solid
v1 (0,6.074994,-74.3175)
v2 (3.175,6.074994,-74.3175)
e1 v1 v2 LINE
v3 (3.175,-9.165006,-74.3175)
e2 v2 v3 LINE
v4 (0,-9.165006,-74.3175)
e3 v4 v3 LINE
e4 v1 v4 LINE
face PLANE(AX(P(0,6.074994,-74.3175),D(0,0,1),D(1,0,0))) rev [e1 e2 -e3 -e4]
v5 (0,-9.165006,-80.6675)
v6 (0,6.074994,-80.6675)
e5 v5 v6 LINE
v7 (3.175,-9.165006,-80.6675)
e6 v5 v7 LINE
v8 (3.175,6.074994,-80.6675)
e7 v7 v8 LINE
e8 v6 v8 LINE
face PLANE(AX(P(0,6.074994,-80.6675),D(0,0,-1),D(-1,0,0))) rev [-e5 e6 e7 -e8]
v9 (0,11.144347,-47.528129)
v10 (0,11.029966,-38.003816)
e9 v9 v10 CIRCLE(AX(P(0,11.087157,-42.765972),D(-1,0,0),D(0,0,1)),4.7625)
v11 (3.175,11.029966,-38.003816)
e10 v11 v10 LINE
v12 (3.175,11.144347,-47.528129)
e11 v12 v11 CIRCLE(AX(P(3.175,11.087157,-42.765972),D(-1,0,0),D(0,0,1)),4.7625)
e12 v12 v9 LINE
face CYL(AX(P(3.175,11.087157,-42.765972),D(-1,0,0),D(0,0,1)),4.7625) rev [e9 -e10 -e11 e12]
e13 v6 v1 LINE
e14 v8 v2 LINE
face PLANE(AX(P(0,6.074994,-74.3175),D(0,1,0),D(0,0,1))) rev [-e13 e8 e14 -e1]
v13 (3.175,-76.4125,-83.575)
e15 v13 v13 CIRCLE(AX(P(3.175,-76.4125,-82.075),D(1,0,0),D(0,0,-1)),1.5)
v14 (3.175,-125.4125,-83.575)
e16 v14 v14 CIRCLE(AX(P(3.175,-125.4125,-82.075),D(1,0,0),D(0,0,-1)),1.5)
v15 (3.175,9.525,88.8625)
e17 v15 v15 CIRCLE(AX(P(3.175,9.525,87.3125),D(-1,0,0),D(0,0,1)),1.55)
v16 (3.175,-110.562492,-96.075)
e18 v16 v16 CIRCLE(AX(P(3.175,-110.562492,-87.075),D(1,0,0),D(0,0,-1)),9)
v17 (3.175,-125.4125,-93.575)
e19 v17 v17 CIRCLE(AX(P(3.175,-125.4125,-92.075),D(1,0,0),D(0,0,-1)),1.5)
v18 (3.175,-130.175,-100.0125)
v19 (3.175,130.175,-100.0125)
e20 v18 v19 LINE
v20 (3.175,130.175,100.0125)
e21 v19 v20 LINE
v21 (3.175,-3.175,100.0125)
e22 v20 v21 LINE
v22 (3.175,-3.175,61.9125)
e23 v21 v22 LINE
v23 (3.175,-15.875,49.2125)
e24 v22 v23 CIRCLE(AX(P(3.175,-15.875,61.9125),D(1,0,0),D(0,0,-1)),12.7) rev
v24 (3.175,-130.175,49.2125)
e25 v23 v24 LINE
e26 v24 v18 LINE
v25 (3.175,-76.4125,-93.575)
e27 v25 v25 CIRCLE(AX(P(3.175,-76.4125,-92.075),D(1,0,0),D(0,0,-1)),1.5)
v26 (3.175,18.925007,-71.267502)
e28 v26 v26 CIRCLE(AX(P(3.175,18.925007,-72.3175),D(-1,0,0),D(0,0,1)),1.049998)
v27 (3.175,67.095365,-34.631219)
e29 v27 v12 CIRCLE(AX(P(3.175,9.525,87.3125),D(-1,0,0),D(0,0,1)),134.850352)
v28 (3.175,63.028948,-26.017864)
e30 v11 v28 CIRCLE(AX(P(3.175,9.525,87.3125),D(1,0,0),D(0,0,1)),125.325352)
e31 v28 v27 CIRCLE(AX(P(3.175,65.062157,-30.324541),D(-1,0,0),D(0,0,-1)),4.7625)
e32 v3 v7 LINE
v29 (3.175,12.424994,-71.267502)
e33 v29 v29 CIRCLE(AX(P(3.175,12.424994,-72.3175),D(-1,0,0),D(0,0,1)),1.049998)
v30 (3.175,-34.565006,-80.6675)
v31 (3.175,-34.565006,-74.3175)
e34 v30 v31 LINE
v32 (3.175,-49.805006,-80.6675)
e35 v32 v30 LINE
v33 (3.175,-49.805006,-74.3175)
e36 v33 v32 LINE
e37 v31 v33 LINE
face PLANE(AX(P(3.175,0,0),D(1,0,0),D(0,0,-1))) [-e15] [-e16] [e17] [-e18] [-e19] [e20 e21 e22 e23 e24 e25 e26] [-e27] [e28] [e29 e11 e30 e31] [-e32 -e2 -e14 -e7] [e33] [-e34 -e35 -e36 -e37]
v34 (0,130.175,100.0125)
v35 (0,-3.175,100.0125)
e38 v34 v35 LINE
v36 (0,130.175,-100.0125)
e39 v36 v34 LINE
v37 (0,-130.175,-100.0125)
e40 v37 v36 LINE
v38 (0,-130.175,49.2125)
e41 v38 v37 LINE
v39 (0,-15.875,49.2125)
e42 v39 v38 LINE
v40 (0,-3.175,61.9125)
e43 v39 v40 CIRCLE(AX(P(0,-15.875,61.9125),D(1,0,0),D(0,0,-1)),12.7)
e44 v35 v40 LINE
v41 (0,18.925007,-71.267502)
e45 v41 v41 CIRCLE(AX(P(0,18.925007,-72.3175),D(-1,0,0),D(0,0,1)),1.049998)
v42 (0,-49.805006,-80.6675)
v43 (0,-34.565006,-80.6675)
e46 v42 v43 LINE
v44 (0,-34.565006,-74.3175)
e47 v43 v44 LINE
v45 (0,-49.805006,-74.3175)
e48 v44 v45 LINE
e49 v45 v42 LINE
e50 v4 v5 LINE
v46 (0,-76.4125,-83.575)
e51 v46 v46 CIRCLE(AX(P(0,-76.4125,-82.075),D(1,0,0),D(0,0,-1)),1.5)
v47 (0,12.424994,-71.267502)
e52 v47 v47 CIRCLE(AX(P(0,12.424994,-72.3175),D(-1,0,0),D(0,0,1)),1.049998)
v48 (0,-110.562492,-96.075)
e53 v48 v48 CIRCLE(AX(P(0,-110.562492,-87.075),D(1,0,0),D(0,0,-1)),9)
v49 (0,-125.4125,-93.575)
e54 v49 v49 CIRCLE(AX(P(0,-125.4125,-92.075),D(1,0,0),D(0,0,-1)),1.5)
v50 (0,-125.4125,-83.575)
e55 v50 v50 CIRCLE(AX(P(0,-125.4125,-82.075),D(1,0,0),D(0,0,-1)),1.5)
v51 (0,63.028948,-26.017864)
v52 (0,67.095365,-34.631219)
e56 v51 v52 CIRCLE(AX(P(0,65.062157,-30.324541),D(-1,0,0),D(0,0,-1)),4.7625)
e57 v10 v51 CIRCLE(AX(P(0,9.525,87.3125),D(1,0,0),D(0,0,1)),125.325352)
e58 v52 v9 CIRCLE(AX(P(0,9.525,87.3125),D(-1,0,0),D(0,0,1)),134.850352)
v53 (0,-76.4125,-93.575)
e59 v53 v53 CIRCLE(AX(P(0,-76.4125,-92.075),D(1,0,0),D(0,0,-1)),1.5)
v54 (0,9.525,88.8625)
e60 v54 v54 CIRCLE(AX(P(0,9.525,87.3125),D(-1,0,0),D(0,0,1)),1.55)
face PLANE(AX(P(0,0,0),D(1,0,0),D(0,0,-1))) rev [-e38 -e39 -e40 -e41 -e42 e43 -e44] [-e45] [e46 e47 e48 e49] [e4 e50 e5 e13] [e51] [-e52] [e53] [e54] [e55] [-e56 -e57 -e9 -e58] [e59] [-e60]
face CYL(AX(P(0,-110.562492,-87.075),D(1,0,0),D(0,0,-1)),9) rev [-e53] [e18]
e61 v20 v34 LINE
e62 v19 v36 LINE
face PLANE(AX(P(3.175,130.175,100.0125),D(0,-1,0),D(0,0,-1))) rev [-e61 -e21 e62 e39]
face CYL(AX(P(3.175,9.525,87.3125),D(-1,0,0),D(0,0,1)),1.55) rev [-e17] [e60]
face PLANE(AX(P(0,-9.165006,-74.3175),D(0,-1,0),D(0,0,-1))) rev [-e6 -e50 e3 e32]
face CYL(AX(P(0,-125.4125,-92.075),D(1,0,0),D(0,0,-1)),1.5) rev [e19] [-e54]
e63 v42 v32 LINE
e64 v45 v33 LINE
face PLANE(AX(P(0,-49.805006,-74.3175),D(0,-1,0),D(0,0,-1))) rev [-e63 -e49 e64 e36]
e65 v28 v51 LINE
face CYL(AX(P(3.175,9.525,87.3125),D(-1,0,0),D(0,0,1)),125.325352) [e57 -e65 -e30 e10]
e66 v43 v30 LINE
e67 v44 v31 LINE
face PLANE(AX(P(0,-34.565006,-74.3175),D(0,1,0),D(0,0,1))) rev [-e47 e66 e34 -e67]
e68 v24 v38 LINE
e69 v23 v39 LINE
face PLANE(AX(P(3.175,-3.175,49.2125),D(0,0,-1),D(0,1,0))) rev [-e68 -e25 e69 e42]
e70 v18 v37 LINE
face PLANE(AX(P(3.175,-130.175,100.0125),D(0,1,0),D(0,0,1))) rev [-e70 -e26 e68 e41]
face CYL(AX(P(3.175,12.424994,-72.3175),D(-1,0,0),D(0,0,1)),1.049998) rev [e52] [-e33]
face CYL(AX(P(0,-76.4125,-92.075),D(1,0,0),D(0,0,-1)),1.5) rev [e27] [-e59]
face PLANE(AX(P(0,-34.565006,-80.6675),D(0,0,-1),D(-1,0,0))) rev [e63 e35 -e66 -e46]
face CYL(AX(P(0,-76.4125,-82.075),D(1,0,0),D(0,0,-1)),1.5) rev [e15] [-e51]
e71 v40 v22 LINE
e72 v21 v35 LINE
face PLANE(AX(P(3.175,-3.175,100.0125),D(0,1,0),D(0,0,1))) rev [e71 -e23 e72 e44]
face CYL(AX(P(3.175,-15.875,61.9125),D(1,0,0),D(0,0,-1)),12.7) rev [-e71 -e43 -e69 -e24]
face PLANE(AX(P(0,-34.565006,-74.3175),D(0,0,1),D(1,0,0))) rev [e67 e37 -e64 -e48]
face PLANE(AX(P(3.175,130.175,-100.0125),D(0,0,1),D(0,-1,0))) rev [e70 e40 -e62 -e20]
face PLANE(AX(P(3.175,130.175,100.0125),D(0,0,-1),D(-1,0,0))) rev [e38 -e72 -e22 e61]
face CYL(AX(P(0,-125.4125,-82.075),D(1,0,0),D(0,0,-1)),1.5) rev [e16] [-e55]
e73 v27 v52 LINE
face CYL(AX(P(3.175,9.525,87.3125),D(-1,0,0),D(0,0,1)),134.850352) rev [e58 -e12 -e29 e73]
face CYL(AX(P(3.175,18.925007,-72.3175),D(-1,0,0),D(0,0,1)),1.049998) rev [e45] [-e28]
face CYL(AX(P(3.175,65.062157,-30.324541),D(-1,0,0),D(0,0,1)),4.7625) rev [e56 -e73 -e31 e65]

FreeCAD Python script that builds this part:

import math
import FreeCAD as App
import Part
import Sketcher

V = App.Vector
Q = App.Units.Quantity


def edges_at(feature, points):
    """Names of the edges that pass closest to the given points."""
    edges = feature.Shape.Edges
    near = lambda p: min(range(len(edges)), key=lambda i: edges[i].distToShape(Part.Vertex(*p))[0])
    return sorted({f"Edge{near(p) + 1}" for p in points})

doc = App.newDocument("Part")
params = doc.addObject("Spreadsheet::Sheet", "Params")
for row, (alias, value) in enumerate([
    ("sketch1_width", "10.25 in"),
    ("sketch1_height", "7.875 in"),
    ("pad1_length", "0.125 in"),
    ("sketch3_width", "5 in"),
    ("sketch3_height", "2 in"),
    ("fillet_radius", "0.5 in"),
    ("sketch4_radius", "0.1875 in"),
    ("sketch5_width", "0.6 in"),
    ("sketch5_height", "0.25 in"),
], start=1):
    params.set(f"A{row}", alias)
    params.set(f"B{row}", "=" + value)
    params.setAlias(f"B{row}", alias)

body = doc.addObject("PartDesign::Body", "Body")

sketch1 = body.newObject("Sketcher::SketchObject", "Sketch")
sketch1.AttachmentSupport = (doc.getObject("YZ_Plane"), [""])
sketch1.MapMode = "FlatFace"
sketch1.addGeometry(Part.LineSegment(V(130.175, 100.0125, 0), V(-130.175, 100.0125, 0)), False)
sketch1.addGeometry(Part.LineSegment(V(-130.175, 100.0125, 0), V(-130.175, -100.0125, 0)), False)
sketch1.addGeometry(Part.LineSegment(V(-130.175, -100.0125, 0), V(130.175, -100.0125, 0)), False)
sketch1.addGeometry(Part.LineSegment(V(130.175, -100.0125, 0), V(130.175, 100.0125, 0)), False)
sketch1.addConstraint(Sketcher.Constraint("Coincident", 0, 2, 1, 1))
sketch1.addConstraint(Sketcher.Constraint("Coincident", 1, 2, 2, 1))
sketch1.addConstraint(Sketcher.Constraint("Coincident", 2, 2, 3, 1))
sketch1.addConstraint(Sketcher.Constraint("Coincident", 3, 2, 0, 1))
sketch1.addConstraint(Sketcher.Constraint("Horizontal", 0))
sketch1.addConstraint(Sketcher.Constraint("Vertical", 1))
sketch1.addConstraint(Sketcher.Constraint("Horizontal", 2))
sketch1.addConstraint(Sketcher.Constraint("Vertical", 3))
sketch1.addConstraint(Sketcher.Constraint("Symmetric", 0, 2, 2, 2, -1, 1))
sketch1.addConstraint(Sketcher.Constraint("DistanceX", 0, 2, 0, 1, Q("10.25 in")))
sketch1.addConstraint(Sketcher.Constraint("DistanceY", 1, 2, 1, 1, Q("7.875 in")))
sketch1.setExpression("Constraints[9]", "Params.sketch1_width")
sketch1.setExpression("Constraints[10]", "Params.sketch1_height")
pad1 = body.newObject("PartDesign::Pad", "Pad")
pad1.Profile = sketch1
pad1.setExpression("Length", "Params.pad1_length")

sketch2 = body.newObject("Sketcher::SketchObject", "Sketch001")
sketch2.AttachmentSupport = (doc.getObject("YZ_Plane"), [""])
sketch2.MapMode = "FlatFace"
sketch2.addGeometry(Part.Circle(V(9.525, 87.3125, 0), V(0, 0, 1), 1.55), False)
sketch2.addGeometry(Part.Circle(V(18.925007, -72.3175, 0), V(0, 0, 1), 1.049998), False)
sketch2.addGeometry(Part.Circle(V(12.424994, -72.3175, 0), V(0, 0, 1), 1.049998), False)
sketch2.addConstraint(Sketcher.Constraint("Equal", 1, 2))
sketch2.addConstraint(Sketcher.Constraint("Horizontal", 1, 3, 2, 3))
sketch2.addConstraint(Sketcher.Constraint("Diameter", 0, Q("3.1 mm")))
sketch2.addConstraint(Sketcher.Constraint("DistanceX", -1, 1, 0, 3, Q("0.375 in")))
sketch2.addConstraint(Sketcher.Constraint("DistanceY", -1, 1, 0, 3, Q("3.4375 in")))
sketch2.addConstraint(Sketcher.Constraint("Diameter", 1, Q("2.099996 mm")))
sketch2.addConstraint(Sketcher.Constraint("DistanceY", 1, 3, -1, 1, Q("72.3175 mm")))
sketch2.addConstraint(Sketcher.Constraint("DistanceX", -1, 1, 1, 3, Q("18.925007 mm")))
sketch2.addConstraint(Sketcher.Constraint("DistanceX", -1, 1, 2, 3, Q("12.424994 mm")))
pocket1 = body.newObject("PartDesign::Pocket", "Pocket")
pocket1.Profile = sketch2
pocket1.Type = "ThroughAll"
pocket1.Reversed = True

sketch3 = body.newObject("Sketcher::SketchObject", "Sketch002")
sketch3.AttachmentSupport = (doc.getObject("YZ_Plane"), [""])
sketch3.MapMode = "FlatFace"
sketch3.addGeometry(Part.LineSegment(V(-3.175, 49.2125, 0), V(-130.175, 49.2125, 0)), False)
sketch3.addGeometry(Part.LineSegment(V(-130.175, 49.2125, 0), V(-130.175, 100.0125, 0)), False)
sketch3.addGeometry(Part.LineSegment(V(-130.175, 100.0125, 0), V(-3.175, 100.0125, 0)), False)
sketch3.addGeometry(Part.LineSegment(V(-3.175, 100.0125, 0), V(-3.175, 49.2125, 0)), False)
sketch3.addConstraint(Sketcher.Constraint("Coincident", 0, 2, 1, 1))
sketch3.addConstraint(Sketcher.Constraint("Coincident", 1, 2, 2, 1))
sketch3.addConstraint(Sketcher.Constraint("Coincident", 2, 2, 3, 1))
sketch3.addConstraint(Sketcher.Constraint("Coincident", 3, 2, 0, 1))
sketch3.addConstraint(Sketcher.Constraint("Horizontal", 0))
sketch3.addConstraint(Sketcher.Constraint("Vertical", 1))
sketch3.addConstraint(Sketcher.Constraint("Horizontal", 2))
sketch3.addConstraint(Sketcher.Constraint("Vertical", 3))
sketch3.addConstraint(Sketcher.Constraint("DistanceX", 0, 2, 0, 1, Q("5 in")))
sketch3.addConstraint(Sketcher.Constraint("DistanceY", 1, 1, 1, 2, Q("2 in")))
sketch3.addConstraint(Sketcher.Constraint("DistanceX", 0, 2, -1, 1, Q("5.125 in")))
sketch3.addConstraint(Sketcher.Constraint("DistanceY", -1, 1, 0, 2, Q("1.9375 in")))
sketch3.setExpression("Constraints[8]", "Params.sketch3_width")
sketch3.setExpression("Constraints[9]", "Params.sketch3_height")
pocket2 = body.newObject("PartDesign::Pocket", "Pocket001")
pocket2.Profile = sketch3
pocket2.Type = "ThroughAll"
pocket2.Reversed = True
doc.recompute()

fillet = body.newObject("PartDesign::Fillet", "Fillet")
fillet.Base = (pocket2, edges_at(pocket2, [(1.587, -3.175, 49.212)]))
fillet.setExpression("Radius", "Params.fillet_radius")

sketch4 = body.newObject("Sketcher::SketchObject", "Sketch003")
sketch4.AttachmentSupport = (doc.getObject("YZ_Plane"), [""])
sketch4.MapMode = "FlatFace"
sketch4.addGeometry(Part.ArcOfCircle(Part.Circle(V(9.525, 87.3125, 0), V(0, 0, 1), 134.850352), math.radians(-89.311949), math.radians(-64.727721)), False)
sketch4.addGeometry(Part.ArcOfCircle(Part.Circle(V(11.087157, -42.765972, 0), V(0, 0, 1), 4.7625), math.radians(90.688051), math.radians(270.688051)), False)
sketch4.addGeometry(Part.ArcOfCircle(Part.Circle(V(9.525, 87.3125, 0), V(0, 0, 1), 125.325352), math.radians(-89.311949), math.radians(-64.727722)), False)
sketch4.addGeometry(Part.ArcOfCircle(Part.Circle(V(65.062157, -30.324541, 0), V(0, 0, 1), 4.7625), math.radians(-64.727721), math.radians(115.272281)), False)
sketch4.addConstraint(Sketcher.Constraint("Tangent", 0, 1, 1, 2))
sketch4.addConstraint(Sketcher.Constraint("Tangent", 1, 1, 2, 1))
sketch4.addConstraint(Sketcher.Constraint("Tangent", 2, 2, 3, 2))
sketch4.addConstraint(Sketcher.Constraint("Tangent", 3, 1, 0, 2))
sketch4.addConstraint(Sketcher.Constraint("Coincident", 2, 3, 0, 3))
sketch4.addConstraint(Sketcher.Constraint("Radius", 1, Q("0.1875 in")))
sketch4.addConstraint(Sketcher.Constraint("DistanceX", -1, 1, 0, 3, Q("0.375 in")))
sketch4.addConstraint(Sketcher.Constraint("DistanceY", -1, 1, 0, 3, Q("3.4375 in")))
sketch4.addConstraint(Sketcher.Constraint("DistanceX", 1, 3, 3, 3, Q("2.125 in")))
sketch4.addConstraint(Sketcher.Constraint("Radius", 0, Q("134.850352 mm")))
sketch4.addConstraint(Sketcher.Constraint("DistanceX", 1, 1, 3, 1, Q("56.065399 mm")))
sketch4.setExpression("Constraints[5]", "Params.sketch4_radius")
pocket3 = body.newObject("PartDesign::Pocket", "Pocket002")
pocket3.Profile = sketch4
pocket3.Type = "ThroughAll"
pocket3.Reversed = True

sketch5 = body.newObject("Sketcher::SketchObject", "Sketch004")
sketch5.AttachmentSupport = (doc.getObject("YZ_Plane"), [""])
sketch5.MapMode = "FlatFace"
sketch5.AttachmentOffset = App.Placement(V(0, 0, 0.125 * 25.4), App.Rotation())
sketch5.addGeometry(Part.LineSegment(V(6.074994, -74.3175, 0), V(-9.165006, -74.3175, 0)), False)
sketch5.addGeometry(Part.LineSegment(V(-9.165006, -74.3175, 0), V(-9.165006, -80.6675, 0)), False)
sketch5.addGeometry(Part.LineSegment(V(-9.165006, -80.6675, 0), V(6.074994, -80.6675, 0)), False)
sketch5.addGeometry(Part.LineSegment(V(6.074994, -80.6675, 0), V(6.074994, -74.3175, 0)), False)
sketch5.addGeometry(Part.LineSegment(V(-34.565006, -74.3175, 0), V(-49.805006, -74.3175, 0)), False)
sketch5.addGeometry(Part.LineSegment(V(-49.805006, -74.3175, 0), V(-49.805006, -80.6675, 0)), False)
sketch5.addGeometry(Part.LineSegment(V(-49.805006, -80.6675, 0), V(-34.565006, -80.6675, 0)), False)
sketch5.addGeometry(Part.LineSegment(V(-34.565006, -80.6675, 0), V(-34.565006, -74.3175, 0)), False)
sketch5.addConstraint(Sketcher.Constraint("Coincident", 0, 2, 1, 1))
sketch5.addConstraint(Sketcher.Constraint("Coincident", 1, 2, 2, 1))
sketch5.addConstraint(Sketcher.Constraint("Coincident", 2, 2, 3, 1))
sketch5.addConstraint(Sketcher.Constraint("Coincident", 3, 2, 0, 1))
sketch5.addConstraint(Sketcher.Constraint("Coincident", 4, 2, 5, 1))
sketch5.addConstraint(Sketcher.Constraint("Coincident", 5, 2, 6, 1))
sketch5.addConstraint(Sketcher.Constraint("Coincident", 6, 2, 7, 1))
sketch5.addConstraint(Sketcher.Constraint("Coincident", 7, 2, 4, 1))
sketch5.addConstraint(Sketcher.Constraint("Horizontal", 0))
sketch5.addConstraint(Sketcher.Constraint("Vertical", 1))
sketch5.addConstraint(Sketcher.Constraint("Horizontal", 2))
sketch5.addConstraint(Sketcher.Constraint("Vertical", 3))
sketch5.addConstraint(Sketcher.Constraint("Horizontal", 4))
sketch5.addConstraint(Sketcher.Constraint("Vertical", 5))
sketch5.addConstraint(Sketcher.Constraint("Horizontal", 6))
sketch5.addConstraint(Sketcher.Constraint("Vertical", 7))
sketch5.addConstraint(Sketcher.Constraint("Horizontal", 3, 2, 4, 2))
sketch5.addConstraint(Sketcher.Constraint("Horizontal", 2, 2, 5, 2))
sketch5.addConstraint(Sketcher.Constraint("Equal", 2, 4))
sketch5.addConstraint(Sketcher.Constraint("DistanceX", 0, 2, 0, 1, Q("0.6 in")))
sketch5.addConstraint(Sketcher.Constraint("DistanceX", 6, 2, 1, 2, Q("1 in")))
sketch5.addConstraint(Sketcher.Constraint("DistanceY", 1, 2, 1, 1, Q("0.25 in")))
sketch5.addConstraint(Sketcher.Constraint("DistanceY", 0, 2, -1, 1, Q("74.3175 mm")))
sketch5.addConstraint(Sketcher.Constraint("DistanceX", 0, 2, -1, 1, Q("9.165006 mm")))
sketch5.setExpression("Constraints[19]", "Params.sketch5_width")
sketch5.setExpression("Constraints[21]", "Params.sketch5_height")
pocket4 = body.newObject("PartDesign::Pocket", "Pocket003")
pocket4.Profile = sketch5
pocket4.Type = "ThroughAll"

sketch6 = body.newObject("Sketcher::SketchObject", "Sketch005")
sketch6.AttachmentSupport = (doc.getObject("YZ_Plane"), [""])
sketch6.MapMode = "FlatFace"
sketch6.AttachmentOffset = App.Placement(V(0, 0, 0.125 * 25.4), App.Rotation())
sketch6.addGeometry(Part.Circle(V(-125.4125, -82.075, 0), V(0, 0, 1), 1.5), False)
sketch6.addGeometry(Part.Circle(V(-76.4125, -82.075, 0), V(0, 0, 1), 1.5), False)
sketch6.addGeometry(Part.Circle(V(-125.4125, -92.075, 0), V(0, 0, 1), 1.5), False)
sketch6.addGeometry(Part.Circle(V(-76.4125, -92.075, 0), V(0, 0, 1), 1.5), False)
sketch6.addGeometry(Part.Circle(V(-110.562492, -87.075, 0), V(0, 0, 1), 9), False)
sketch6.addConstraint(Sketcher.Constraint("Equal", 0, 1))
sketch6.addConstraint(Sketcher.Constraint("Equal", 1, 2))
sketch6.addConstraint(Sketcher.Constraint("Equal", 2, 3))
sketch6.addConstraint(Sketcher.Constraint("Horizontal", 0, 3, 1, 3))
sketch6.addConstraint(Sketcher.Constraint("Horizontal", 2, 3, 3, 3))
sketch6.addConstraint(Sketcher.Constraint("Vertical", 0, 3, 2, 3))
sketch6.addConstraint(Sketcher.Constraint("Vertical", 1, 3, 3, 3))
sketch6.addConstraint(Sketcher.Constraint("Diameter", 0, Q("3 mm")))
sketch6.addConstraint(Sketcher.Constraint("Diameter", 4, Q("18 mm")))
sketch6.addConstraint(Sketcher.Constraint("DistanceX", 0, 3, -1, 1, Q("4.9375 in")))
sketch6.addConstraint(Sketcher.Constraint("DistanceY", 2, 3, -1, 1, Q("3.625 in")))
sketch6.addConstraint(Sketcher.Constraint("DistanceY", 0, 3, -1, 1, Q("82.075 mm")))
sketch6.addConstraint(Sketcher.Constraint("DistanceX", 1, 3, -1, 1, Q("76.4125 mm")))
sketch6.addConstraint(Sketcher.Constraint("DistanceY", 4, 3, -1, 1, Q("87.075 mm")))
sketch6.addConstraint(Sketcher.Constraint("DistanceX", 4, 3, -1, 1, Q("110.562492 mm")))
pocket5 = body.newObject("PartDesign::Pocket", "Pocket004")
pocket5.Profile = sketch6
pocket5.Type = "ThroughAll"

doc.recompute()
